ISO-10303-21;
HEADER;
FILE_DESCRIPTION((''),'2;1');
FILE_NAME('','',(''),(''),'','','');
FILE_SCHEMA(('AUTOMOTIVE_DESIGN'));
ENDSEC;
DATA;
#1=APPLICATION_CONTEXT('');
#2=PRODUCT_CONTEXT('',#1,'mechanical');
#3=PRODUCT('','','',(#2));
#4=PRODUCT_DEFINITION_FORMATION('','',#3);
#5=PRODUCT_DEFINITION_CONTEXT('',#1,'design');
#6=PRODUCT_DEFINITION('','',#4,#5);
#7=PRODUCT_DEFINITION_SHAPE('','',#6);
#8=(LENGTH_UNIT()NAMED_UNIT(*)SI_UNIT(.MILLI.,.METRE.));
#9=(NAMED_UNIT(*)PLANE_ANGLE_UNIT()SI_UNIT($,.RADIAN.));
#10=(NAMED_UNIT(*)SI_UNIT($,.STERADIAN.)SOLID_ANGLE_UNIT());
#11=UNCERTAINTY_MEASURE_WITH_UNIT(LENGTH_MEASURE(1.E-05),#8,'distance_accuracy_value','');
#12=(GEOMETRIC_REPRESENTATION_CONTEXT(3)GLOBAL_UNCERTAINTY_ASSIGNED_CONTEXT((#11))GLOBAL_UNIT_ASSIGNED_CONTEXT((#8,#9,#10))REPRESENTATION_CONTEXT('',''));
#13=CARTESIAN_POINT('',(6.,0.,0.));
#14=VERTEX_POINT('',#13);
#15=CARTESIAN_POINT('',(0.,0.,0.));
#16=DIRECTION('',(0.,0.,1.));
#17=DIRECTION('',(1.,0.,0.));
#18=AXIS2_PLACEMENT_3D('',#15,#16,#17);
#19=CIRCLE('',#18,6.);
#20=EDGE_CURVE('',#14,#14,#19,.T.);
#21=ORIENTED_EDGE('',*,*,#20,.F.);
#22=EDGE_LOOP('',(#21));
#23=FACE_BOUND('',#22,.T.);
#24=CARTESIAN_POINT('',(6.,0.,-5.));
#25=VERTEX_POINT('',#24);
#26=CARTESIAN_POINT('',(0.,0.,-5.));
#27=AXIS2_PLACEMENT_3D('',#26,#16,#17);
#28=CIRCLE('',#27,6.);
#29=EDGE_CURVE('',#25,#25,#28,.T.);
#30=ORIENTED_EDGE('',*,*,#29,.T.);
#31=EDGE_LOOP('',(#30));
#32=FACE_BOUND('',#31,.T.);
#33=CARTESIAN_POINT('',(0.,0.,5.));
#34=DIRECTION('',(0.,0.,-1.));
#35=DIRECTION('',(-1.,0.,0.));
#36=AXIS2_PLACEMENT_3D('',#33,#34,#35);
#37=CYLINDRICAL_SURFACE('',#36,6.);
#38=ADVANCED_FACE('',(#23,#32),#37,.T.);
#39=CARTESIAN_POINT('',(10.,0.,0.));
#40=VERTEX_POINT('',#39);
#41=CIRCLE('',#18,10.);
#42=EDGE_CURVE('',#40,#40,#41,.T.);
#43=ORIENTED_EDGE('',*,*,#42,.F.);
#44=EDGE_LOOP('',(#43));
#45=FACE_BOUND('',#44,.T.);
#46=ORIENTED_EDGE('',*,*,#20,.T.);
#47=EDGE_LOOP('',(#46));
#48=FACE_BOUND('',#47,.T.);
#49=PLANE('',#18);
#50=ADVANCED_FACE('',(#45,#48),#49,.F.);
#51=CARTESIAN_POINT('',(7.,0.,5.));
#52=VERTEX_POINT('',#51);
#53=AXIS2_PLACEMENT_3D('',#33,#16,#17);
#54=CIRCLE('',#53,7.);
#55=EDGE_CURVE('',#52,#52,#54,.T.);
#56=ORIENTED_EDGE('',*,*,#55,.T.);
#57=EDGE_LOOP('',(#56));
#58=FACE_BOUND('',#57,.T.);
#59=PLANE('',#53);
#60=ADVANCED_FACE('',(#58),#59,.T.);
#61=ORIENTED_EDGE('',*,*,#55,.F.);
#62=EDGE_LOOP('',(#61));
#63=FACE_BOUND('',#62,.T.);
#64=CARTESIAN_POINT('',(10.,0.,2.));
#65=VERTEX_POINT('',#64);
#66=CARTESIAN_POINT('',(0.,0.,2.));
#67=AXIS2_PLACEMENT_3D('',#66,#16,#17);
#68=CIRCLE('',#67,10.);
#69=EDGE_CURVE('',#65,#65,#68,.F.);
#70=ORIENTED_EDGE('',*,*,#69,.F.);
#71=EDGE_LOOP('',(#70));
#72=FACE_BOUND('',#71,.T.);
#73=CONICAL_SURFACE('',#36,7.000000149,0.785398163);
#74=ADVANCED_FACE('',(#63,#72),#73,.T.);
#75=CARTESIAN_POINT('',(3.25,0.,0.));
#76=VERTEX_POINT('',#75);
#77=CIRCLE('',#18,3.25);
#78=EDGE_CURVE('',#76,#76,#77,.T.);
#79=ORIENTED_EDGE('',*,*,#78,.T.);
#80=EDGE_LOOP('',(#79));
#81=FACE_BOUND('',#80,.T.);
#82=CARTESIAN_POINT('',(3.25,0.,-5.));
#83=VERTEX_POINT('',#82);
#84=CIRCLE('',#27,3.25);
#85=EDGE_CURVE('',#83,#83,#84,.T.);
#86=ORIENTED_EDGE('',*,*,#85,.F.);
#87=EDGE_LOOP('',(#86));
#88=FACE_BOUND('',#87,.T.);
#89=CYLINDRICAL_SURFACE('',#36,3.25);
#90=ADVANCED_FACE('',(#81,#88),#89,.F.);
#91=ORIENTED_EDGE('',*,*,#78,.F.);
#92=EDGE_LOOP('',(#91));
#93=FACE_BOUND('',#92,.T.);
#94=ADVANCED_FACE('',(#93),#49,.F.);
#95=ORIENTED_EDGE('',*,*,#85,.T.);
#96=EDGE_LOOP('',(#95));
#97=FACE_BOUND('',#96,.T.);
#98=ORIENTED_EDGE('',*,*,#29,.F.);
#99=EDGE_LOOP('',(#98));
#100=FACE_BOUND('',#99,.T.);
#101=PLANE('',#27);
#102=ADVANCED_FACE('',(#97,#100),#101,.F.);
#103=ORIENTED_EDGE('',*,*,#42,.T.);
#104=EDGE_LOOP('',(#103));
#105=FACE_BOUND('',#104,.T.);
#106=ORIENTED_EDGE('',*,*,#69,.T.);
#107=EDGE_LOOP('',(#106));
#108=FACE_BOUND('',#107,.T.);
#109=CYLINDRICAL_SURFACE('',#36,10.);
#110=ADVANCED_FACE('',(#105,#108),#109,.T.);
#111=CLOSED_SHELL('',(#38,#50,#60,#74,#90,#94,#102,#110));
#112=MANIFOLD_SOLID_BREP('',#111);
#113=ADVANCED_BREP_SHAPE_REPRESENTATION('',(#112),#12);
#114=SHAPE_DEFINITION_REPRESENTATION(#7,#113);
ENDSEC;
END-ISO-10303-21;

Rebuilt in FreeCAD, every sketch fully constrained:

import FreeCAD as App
import Part
import Sketcher


def edges_at(feature, points):
    """Names of the edges that pass closest to the given points."""
    edges = feature.Shape.Edges
    near = lambda p: min(range(len(edges)), key=lambda i: edges[i].distToShape(Part.Vertex(*p))[0])
    return sorted({f"Edge{near(p) + 1}" for p in points})

doc = App.newDocument("Part")
body = doc.addObject("PartDesign::Body", "Body")

sketch1 = body.newObject("Sketcher::SketchObject", "Sketch")
sketch1.AttachmentSupport = (doc.getObject("XY_Plane"), [""])
sketch1.MapMode = "FlatFace"
sketch1.addGeometry([
    Part.Circle(App.Vector(0, 0, 0), App.Vector(0, 0, 1), 6),
    Part.Circle(App.Vector(0, 0, 0), App.Vector(0, 0, 1), 3.2),
], False)
sketch1.addConstraint([
    Sketcher.Constraint("Coincident", 0, 3, -1, 1),
    Sketcher.Constraint("Coincident", 1, 3, -1, 1),
    Sketcher.Constraint("Diameter", 0, 12.0),
    Sketcher.Constraint("Diameter", 1, 6.5),
])
pad1 = body.newObject("PartDesign::Pad", "Pad")
pad1.Profile = sketch1
pad1.Type = "TwoLengths"
pad1.Length = 5
pad1.Length2 = 5

sketch2 = body.newObject("Sketcher::SketchObject", "Sketch001")
sketch2.AttachmentSupport = (doc.getObject("XY_Plane"), [""])
sketch2.MapMode = "FlatFace"
sketch2.addGeometry(Part.Circle(App.Vector(0, 0, 0), App.Vector(0, 0, 1), 10), False)
sketch2.addConstraint([
    Sketcher.Constraint("Coincident", 0, 3, -1, 1),
    Sketcher.Constraint("Diameter", 0, 20.0),
])
pad2 = body.newObject("PartDesign::Pad", "Pad001")
pad2.Profile = sketch2
pad2.Length = 5
doc.recompute()

chamfer = body.newObject("PartDesign::Chamfer", "Chamfer")
chamfer.Base = (pad2, edges_at(pad2, [(-10, 0, 5)]))
chamfer.Size = 3

doc.recompute()
